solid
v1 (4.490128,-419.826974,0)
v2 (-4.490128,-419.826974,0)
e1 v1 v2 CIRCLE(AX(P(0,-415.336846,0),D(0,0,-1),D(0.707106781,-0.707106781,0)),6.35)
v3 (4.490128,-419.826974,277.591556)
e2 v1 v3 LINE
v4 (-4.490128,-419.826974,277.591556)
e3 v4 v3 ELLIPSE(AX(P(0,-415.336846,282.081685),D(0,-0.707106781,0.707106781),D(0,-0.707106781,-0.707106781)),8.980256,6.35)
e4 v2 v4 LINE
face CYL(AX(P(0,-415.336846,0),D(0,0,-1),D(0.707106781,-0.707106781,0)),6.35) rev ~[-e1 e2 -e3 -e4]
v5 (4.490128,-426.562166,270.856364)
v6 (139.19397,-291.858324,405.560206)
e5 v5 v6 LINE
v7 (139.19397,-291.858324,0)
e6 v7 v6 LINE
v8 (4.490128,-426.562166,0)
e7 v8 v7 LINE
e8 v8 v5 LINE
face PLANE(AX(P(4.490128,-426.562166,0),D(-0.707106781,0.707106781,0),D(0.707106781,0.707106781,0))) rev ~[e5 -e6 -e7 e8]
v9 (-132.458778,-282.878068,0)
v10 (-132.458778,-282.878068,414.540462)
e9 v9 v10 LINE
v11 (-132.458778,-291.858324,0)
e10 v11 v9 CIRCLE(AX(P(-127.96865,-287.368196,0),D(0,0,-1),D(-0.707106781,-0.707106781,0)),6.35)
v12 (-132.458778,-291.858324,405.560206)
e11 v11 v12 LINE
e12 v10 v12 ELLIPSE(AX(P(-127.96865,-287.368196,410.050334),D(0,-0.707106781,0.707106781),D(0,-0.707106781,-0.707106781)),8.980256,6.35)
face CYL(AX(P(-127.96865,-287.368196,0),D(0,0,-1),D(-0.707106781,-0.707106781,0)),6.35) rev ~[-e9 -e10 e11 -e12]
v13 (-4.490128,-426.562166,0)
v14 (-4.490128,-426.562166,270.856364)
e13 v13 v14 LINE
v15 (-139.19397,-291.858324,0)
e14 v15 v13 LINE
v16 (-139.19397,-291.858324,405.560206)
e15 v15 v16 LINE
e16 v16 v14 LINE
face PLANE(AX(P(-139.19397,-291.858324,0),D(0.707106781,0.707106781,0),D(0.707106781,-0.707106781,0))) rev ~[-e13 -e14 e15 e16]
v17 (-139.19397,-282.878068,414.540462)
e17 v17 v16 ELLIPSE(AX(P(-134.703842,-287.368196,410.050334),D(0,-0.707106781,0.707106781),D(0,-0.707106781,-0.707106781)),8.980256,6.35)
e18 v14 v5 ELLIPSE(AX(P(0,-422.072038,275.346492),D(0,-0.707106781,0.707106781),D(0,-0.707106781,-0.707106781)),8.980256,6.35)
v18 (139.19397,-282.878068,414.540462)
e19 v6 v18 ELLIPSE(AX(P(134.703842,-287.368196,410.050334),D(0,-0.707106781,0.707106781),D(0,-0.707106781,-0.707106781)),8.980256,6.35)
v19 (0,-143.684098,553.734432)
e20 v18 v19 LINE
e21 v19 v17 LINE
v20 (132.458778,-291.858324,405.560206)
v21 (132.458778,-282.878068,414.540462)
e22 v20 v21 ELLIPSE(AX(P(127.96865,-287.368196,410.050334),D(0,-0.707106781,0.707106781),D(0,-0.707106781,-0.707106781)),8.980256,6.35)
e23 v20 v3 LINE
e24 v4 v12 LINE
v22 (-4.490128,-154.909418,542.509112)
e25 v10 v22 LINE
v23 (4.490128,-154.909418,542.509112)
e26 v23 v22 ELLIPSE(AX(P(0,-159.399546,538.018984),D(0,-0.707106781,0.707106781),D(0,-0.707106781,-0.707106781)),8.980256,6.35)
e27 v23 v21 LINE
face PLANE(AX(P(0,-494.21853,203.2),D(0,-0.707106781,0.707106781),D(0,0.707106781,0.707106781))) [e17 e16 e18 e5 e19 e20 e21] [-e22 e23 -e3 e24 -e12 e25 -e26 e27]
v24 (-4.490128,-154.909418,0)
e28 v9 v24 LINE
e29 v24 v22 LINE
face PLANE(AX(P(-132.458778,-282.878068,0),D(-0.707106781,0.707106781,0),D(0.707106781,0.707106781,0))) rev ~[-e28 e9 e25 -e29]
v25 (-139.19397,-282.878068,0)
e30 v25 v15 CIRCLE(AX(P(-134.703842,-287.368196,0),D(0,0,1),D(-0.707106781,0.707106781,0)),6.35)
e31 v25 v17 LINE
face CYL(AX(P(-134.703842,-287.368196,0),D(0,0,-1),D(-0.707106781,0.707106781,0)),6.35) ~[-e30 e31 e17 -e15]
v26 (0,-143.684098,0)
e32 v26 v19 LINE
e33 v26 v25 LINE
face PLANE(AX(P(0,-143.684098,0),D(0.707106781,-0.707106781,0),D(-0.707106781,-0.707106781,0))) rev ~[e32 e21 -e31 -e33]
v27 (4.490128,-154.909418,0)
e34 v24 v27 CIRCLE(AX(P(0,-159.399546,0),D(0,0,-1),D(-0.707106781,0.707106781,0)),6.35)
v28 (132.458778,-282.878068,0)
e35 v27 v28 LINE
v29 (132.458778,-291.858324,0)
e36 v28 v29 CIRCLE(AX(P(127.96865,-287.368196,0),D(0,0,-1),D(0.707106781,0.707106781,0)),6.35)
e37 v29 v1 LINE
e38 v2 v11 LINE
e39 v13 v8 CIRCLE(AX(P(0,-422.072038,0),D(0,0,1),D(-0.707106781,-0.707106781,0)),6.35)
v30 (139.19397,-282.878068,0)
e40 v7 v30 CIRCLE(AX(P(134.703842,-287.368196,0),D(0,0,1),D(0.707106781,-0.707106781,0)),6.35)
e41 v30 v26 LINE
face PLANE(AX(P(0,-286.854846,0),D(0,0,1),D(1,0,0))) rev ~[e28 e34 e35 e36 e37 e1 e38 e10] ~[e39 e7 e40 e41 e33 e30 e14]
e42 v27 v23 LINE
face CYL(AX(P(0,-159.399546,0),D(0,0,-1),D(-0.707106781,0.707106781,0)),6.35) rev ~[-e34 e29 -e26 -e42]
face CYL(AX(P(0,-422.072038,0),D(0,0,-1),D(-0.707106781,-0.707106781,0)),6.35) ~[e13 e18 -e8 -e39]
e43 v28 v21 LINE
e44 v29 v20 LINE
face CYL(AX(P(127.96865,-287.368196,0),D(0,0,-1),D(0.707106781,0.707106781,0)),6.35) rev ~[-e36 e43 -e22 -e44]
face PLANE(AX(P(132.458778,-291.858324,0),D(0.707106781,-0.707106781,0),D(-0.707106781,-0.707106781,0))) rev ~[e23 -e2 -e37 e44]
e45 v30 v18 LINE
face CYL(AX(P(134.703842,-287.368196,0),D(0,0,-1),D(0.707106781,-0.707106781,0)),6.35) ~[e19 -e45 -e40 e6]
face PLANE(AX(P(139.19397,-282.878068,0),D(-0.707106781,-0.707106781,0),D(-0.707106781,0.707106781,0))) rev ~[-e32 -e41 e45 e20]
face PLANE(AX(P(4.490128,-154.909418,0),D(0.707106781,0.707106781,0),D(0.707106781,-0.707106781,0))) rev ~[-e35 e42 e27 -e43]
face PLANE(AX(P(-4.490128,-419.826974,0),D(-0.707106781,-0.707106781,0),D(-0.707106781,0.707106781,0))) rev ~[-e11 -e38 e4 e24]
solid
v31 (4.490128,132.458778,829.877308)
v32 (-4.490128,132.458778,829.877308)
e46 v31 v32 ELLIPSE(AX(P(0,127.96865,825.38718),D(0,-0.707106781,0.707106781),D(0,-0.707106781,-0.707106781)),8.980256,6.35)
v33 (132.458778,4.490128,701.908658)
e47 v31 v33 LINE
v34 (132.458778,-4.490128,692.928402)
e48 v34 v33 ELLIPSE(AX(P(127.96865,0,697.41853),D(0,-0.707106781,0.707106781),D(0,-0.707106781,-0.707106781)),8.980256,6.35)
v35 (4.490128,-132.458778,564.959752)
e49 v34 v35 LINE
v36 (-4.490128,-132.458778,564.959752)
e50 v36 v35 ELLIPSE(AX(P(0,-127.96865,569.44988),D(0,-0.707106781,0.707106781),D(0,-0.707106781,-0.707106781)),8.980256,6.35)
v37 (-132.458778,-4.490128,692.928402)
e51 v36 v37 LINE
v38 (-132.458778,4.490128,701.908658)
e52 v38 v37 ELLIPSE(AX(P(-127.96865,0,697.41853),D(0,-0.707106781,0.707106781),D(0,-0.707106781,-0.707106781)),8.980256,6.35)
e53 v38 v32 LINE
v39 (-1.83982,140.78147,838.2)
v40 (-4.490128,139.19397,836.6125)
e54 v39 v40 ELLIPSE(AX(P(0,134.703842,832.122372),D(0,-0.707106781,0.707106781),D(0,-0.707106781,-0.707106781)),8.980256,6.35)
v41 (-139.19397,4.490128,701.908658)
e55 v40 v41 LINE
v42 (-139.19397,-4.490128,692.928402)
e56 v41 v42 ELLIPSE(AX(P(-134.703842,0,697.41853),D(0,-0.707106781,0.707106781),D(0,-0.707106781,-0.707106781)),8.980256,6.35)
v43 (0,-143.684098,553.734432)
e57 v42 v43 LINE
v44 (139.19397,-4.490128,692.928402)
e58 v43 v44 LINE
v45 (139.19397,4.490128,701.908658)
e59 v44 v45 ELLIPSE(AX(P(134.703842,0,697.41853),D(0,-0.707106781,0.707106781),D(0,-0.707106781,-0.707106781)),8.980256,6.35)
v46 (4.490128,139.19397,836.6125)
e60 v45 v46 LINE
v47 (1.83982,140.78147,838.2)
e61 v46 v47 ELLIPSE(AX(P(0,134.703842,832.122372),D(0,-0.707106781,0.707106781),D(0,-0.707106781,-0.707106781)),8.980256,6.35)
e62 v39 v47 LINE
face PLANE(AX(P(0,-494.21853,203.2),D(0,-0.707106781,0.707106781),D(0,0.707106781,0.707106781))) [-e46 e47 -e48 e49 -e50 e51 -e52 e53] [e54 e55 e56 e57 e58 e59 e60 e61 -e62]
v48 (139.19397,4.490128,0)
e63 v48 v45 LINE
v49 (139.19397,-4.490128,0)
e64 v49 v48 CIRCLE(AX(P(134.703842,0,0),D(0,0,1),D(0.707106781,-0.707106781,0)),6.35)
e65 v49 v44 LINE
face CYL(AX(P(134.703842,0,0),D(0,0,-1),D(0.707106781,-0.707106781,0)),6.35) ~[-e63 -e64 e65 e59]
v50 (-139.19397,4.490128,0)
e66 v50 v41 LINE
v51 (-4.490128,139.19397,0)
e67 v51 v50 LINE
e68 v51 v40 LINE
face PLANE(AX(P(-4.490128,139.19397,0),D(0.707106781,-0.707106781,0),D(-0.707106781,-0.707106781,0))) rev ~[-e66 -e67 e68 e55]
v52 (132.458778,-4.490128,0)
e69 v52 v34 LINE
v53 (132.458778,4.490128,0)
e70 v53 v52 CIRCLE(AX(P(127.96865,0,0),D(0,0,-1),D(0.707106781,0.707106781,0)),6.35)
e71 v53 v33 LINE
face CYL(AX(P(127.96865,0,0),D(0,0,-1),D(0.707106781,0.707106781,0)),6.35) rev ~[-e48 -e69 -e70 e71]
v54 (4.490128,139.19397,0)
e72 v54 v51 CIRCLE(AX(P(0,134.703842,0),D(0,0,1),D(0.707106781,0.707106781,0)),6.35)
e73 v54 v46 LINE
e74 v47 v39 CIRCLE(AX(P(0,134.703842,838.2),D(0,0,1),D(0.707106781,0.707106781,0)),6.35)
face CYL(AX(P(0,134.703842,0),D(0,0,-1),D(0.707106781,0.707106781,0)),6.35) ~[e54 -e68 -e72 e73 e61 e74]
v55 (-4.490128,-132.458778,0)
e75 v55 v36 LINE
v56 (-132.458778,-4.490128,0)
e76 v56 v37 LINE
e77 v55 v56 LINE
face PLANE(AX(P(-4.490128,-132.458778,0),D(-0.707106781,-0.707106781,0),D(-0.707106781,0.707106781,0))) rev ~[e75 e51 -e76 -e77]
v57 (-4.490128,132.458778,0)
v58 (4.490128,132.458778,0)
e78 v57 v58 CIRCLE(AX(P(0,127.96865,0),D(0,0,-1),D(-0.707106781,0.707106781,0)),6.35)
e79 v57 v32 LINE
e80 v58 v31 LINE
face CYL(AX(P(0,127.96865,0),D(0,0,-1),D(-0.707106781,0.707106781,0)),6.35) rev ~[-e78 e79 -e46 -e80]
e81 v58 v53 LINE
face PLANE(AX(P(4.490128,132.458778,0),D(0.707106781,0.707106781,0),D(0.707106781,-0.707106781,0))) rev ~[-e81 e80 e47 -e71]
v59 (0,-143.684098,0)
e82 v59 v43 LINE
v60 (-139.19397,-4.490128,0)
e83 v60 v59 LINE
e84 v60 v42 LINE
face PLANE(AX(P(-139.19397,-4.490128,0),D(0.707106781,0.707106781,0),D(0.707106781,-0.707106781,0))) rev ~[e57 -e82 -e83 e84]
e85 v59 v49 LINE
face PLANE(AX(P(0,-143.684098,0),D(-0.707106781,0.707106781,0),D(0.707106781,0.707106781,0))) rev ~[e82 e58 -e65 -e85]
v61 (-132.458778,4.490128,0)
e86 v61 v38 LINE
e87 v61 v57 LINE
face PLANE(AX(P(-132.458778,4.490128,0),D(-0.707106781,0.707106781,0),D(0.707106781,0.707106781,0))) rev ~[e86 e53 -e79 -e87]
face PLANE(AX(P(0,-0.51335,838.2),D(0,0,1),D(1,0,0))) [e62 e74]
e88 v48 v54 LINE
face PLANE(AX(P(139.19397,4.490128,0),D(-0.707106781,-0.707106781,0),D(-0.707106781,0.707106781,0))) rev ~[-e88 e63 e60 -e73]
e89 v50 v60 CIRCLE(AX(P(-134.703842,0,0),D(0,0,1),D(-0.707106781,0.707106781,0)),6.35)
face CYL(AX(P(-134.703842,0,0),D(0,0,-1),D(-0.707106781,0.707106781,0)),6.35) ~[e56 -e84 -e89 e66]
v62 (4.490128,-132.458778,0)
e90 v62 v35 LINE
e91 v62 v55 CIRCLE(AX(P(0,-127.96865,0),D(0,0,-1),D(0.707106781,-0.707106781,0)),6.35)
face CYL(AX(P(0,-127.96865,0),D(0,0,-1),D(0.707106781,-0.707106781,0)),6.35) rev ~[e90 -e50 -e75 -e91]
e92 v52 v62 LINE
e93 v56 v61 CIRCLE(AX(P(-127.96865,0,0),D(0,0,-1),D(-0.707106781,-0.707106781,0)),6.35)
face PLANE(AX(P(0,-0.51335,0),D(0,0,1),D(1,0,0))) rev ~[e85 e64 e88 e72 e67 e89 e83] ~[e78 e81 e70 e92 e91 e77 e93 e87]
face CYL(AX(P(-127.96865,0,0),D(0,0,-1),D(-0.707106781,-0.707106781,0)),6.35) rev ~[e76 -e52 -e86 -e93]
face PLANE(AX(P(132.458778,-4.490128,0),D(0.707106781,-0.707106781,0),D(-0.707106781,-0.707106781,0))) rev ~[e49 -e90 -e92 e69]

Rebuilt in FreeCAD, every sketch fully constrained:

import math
import FreeCAD as App
import Part
import Sketcher
Q = App.Units.Quantity


def add_polygon(sketch, points):
    """Adds a closed chain of lines whose ends are joined by coincident constraints."""
    first, n = sketch.GeometryCount, len(points)
    for a, b in zip(points, points[1:] + points[:1]):
        sketch.addGeometry(Part.LineSegment(App.Vector(*a, 0), App.Vector(*b, 0)), False)
    for i in range(n):
        sketch.addConstraint(Sketcher.Constraint("Coincident", first + i, 2, first + (i + 1) % n, 1))

doc = App.newDocument("Part")
body = doc.addObject("PartDesign::Body", "Body")

# Sketch on XY plane
sketch1 = body.newObject("Sketcher::SketchObject", "Sketch")
sketch1.AttachmentSupport = (doc.getObject("XY_Plane"), [""])
sketch1.MapMode = "FlatFace"
sketch1.addGeometry([
    Part.LineSegment(App.Vector(-4, 139, 0), App.Vector(-139, 4, 0)),  # 0
    Part.ArcOfCircle(Part.Circle(App.Vector(-135, 0, 0), App.Vector(0, 0, 1), 6), math.radians(135), math.radians(225)),  # 1
    Part.LineSegment(App.Vector(-139, -4, 0), App.Vector(0, -144, 0)),  # 2
    Part.LineSegment(App.Vector(0, -144, 0), App.Vector(139, -4, 0)),  # 3
    Part.ArcOfCircle(Part.Circle(App.Vector(135, 0, 0), App.Vector(0, 0, 1), 6), math.radians(-45), math.radians(45)),  # 4
    Part.LineSegment(App.Vector(139, 4, 0), App.Vector(4, 139, 0)),  # 5
    Part.ArcOfCircle(Part.Circle(App.Vector(0, 135, 0), App.Vector(0, 0, 1), 6), math.radians(45), math.radians(135)),  # 6
    Part.LineSegment(App.Vector(-4, -132, 0), App.Vector(-132, -4, 0)),  # 7
    Part.ArcOfCircle(Part.Circle(App.Vector(-128, 0, 0), App.Vector(0, 0, 1), 6), math.radians(135), math.radians(225)),  # 8
    Part.LineSegment(App.Vector(-132, 4, 0), App.Vector(-4, 132, 0)),  # 9
    Part.ArcOfCircle(Part.Circle(App.Vector(0, 128, 0), App.Vector(0, 0, 1), 6), math.radians(45), math.radians(135)),  # 10
    Part.LineSegment(App.Vector(4, 132, 0), App.Vector(132, 4, 0)),  # 11
    Part.ArcOfCircle(Part.Circle(App.Vector(128, 0, 0), App.Vector(0, 0, 1), 6), math.radians(-45), math.radians(45)),  # 12
    Part.LineSegment(App.Vector(132, -4, 0), App.Vector(4, -132, 0)),  # 13
    Part.ArcOfCircle(Part.Circle(App.Vector(0, -128, 0), App.Vector(0, 0, 1), 6), math.radians(-135), math.radians(-45)),  # 14
], False)
sketch1.addConstraint([
    Sketcher.Constraint("Tangent", 0, 2, 1, 1),
    Sketcher.Constraint("Tangent", 1, 2, 2, 1),
    Sketcher.Constraint("Coincident", 2, 2, 3, 1),
    Sketcher.Constraint("Tangent", 3, 2, 4, 1),
    Sketcher.Constraint("Tangent", 4, 2, 5, 1),
    Sketcher.Constraint("Tangent", 5, 2, 6, 1),
    Sketcher.Constraint("Tangent", 6, 2, 0, 1),
    Sketcher.Constraint("Tangent", 7, 2, 8, 2),
    Sketcher.Constraint("Tangent", 8, 1, 9, 1),
    Sketcher.Constraint("Tangent", 9, 2, 10, 2),
    Sketcher.Constraint("Tangent", 10, 1, 11, 1),
    Sketcher.Constraint("Tangent", 11, 2, 12, 2),
    Sketcher.Constraint("Tangent", 12, 1, 13, 1),
    Sketcher.Constraint("Tangent", 13, 2, 14, 2),
    Sketcher.Constraint("Tangent", 14, 1, 7, 1),
    Sketcher.Constraint("Equal", 1, 4),
    Sketcher.Constraint("Equal", 4, 6),
    Sketcher.Constraint("Equal", 6, 8),
    Sketcher.Constraint("Equal", 8, 10),
    Sketcher.Constraint("Equal", 10, 12),
    Sketcher.Constraint("Equal", 12, 14),
    Sketcher.Constraint("Symmetric", 1, 3, 4, 3, -1, 1),
    Sketcher.Constraint("Symmetric", 8, 3, 12, 3, -1, 1),
    Sketcher.Constraint("Symmetric", 10, 3, 14, 3, -1, 1),
    Sketcher.Constraint("Symmetric", 1, 2, 3, 2, -2),
    Sketcher.Constraint("Symmetric", 9, 2, 10, 1, -2),
    Sketcher.Constraint("PointOnObject", 6, 3, -2),
    Sketcher.Constraint("Perpendicular", 0, 2),
    Sketcher.Constraint("Perpendicular", 2, 3),
    Sketcher.Constraint("Parallel", 5, 7),
    Sketcher.Constraint("Radius", 1, Q("0.25 in")),
    Sketcher.Constraint("Distance", 0, Q("7.5 in")),
    Sketcher.Constraint("Distance", 7, Q("7.125 in")),
])
pad1 = body.newObject("PartDesign::Pad", "Pad")
pad1.Profile = sketch1
pad1.Length = Q("33 in")
body2 = doc.addObject("PartDesign::Body", "Body001")

# Sketch on XY plane
sketch2 = body2.newObject("Sketcher::SketchObject", "Sketch001")
sketch2.AttachmentSupport = (doc.getObject("XY_Plane001"), [""])
sketch2.MapMode = "FlatFace"
sketch2.addGeometry([
    Part.LineSegment(App.Vector(139, -283, 0), App.Vector(0, -144, 0)),  # 0
    Part.LineSegment(App.Vector(0, -144, 0), App.Vector(-139, -283, 0)),  # 1
    Part.ArcOfCircle(Part.Circle(App.Vector(-135, -287, 0), App.Vector(0, 0, 1), 6), math.radians(135), math.radians(225)),  # 2
    Part.LineSegment(App.Vector(-139, -292, 0), App.Vector(-4, -427, 0)),  # 3
    Part.ArcOfCircle(Part.Circle(App.Vector(0, -422, 0), App.Vector(0, 0, 1), 6), math.radians(-135), math.radians(-45)),  # 4
    Part.LineSegment(App.Vector(4, -427, 0), App.Vector(139, -292, 0)),  # 5
    Part.ArcOfCircle(Part.Circle(App.Vector(135, -287, 0), App.Vector(0, 0, 1), 6), math.radians(-45), math.radians(45)),  # 6
    Part.ArcOfCircle(Part.Circle(App.Vector(-128, -287, 0), App.Vector(0, 0, 1), 6), math.radians(135), math.radians(225)),  # 7
    Part.LineSegment(App.Vector(-132, -283, 0), App.Vector(-4, -155, 0)),  # 8
    Part.ArcOfCircle(Part.Circle(App.Vector(0, -159, 0), App.Vector(0, 0, 1), 6), math.radians(45), math.radians(135)),  # 9
    Part.LineSegment(App.Vector(4, -155, 0), App.Vector(132, -283, 0)),  # 10
    Part.ArcOfCircle(Part.Circle(App.Vector(128, -287, 0), App.Vector(0, 0, 1), 6), math.radians(-45), math.radians(45)),  # 11
    Part.LineSegment(App.Vector(132, -292, 0), App.Vector(4, -420, 0)),  # 12
    Part.ArcOfCircle(Part.Circle(App.Vector(0, -415, 0), App.Vector(0, 0, 1), 6), math.radians(-135), math.radians(-45)),  # 13
    Part.LineSegment(App.Vector(-4, -420, 0), App.Vector(-132, -292, 0)),  # 14
], False)
sketch2.addConstraint([
    Sketcher.Constraint("Coincident", 0, 2, 1, 1),
    Sketcher.Constraint("Tangent", 1, 2, 2, 1),
    Sketcher.Constraint("Tangent", 2, 2, 3, 1),
    Sketcher.Constraint("Tangent", 3, 2, 4, 1),
    Sketcher.Constraint("Tangent", 4, 2, 5, 1),
    Sketcher.Constraint("Tangent", 5, 2, 6, 1),
    Sketcher.Constraint("Tangent", 6, 2, 0, 1),
    Sketcher.Constraint("Tangent", 7, 1, 8, 1),
    Sketcher.Constraint("Tangent", 8, 2, 9, 2),
    Sketcher.Constraint("Tangent", 9, 1, 10, 1),
    Sketcher.Constraint("Tangent", 10, 2, 11, 2),
    Sketcher.Constraint("Tangent", 11, 1, 12, 1),
    Sketcher.Constraint("Tangent", 12, 2, 13, 2),
    Sketcher.Constraint("Tangent", 13, 1, 14, 1),
    Sketcher.Constraint("Tangent", 14, 2, 7, 2),
    Sketcher.Constraint("Equal", 2, 4),
    Sketcher.Constraint("Equal", 4, 6),
    Sketcher.Constraint("Equal", 6, 7),
    Sketcher.Constraint("Equal", 7, 9),
    Sketcher.Constraint("Equal", 9, 11),
    Sketcher.Constraint("Equal", 11, 13),
    Sketcher.Constraint("Symmetric", 2, 3, 6, 3, -2),
    Sketcher.Constraint("Symmetric", 7, 3, 11, 3, -2),
    Sketcher.Constraint("PointOnObject", 4, 3, -2),
    Sketcher.Constraint("PointOnObject", 9, 3, -2),
    Sketcher.Constraint("PointOnObject", 13, 3, -2),
    Sketcher.Constraint("PointOnObject", 0, 2, -2),
    Sketcher.Constraint("Perpendicular", 0, 1),
    Sketcher.Constraint("Perpendicular", 1, 3),
    Sketcher.Constraint("Parallel", 5, 8),
    Sketcher.Constraint("Perpendicular", 10, 12),
    Sketcher.Constraint("Horizontal", 6, 3, 7, 3),
    Sketcher.Constraint("Radius", 2, Q("0.25 in")),
    Sketcher.Constraint("Distance", 3, Q("7.5 in")),
    Sketcher.Constraint("Distance", 8, Q("7.125 in")),
    Sketcher.Constraint("DistanceY", 8, 2, -1, 1, 154.909418),
])
pad2 = body2.newObject("PartDesign::Pad", "Pad001")
pad2.Profile = sketch2
pad2.Length = Q("33 in")
body3 = doc.addObject("PartDesign::Body", "Body002")

# Sketch on YZ plane
sketch3 = body3.newObject("Sketcher::SketchObject", "Sketch002")
sketch3.AttachmentSupport = (doc.getObject("YZ_Plane002"), [""])
sketch3.MapMode = "FlatFace"
add_polygon(sketch3, [(-494, 203), (141, 838), (-494, 838)])  # lines 0-2
sketch3.addConstraint([
    Sketcher.Constraint("Horizontal", 1),
    Sketcher.Constraint("Vertical", 2),
    Sketcher.Constraint("Equal", 1, 2),
    Sketcher.Constraint("DistanceX", 1, 2, 1, 1, Q("25 in")),
    Sketcher.Constraint("DistanceY", -1, 1, 0, 2, Q("33 in")),
    Sketcher.Constraint("DistanceX", -1, 1, 0, 2, 140.78147),
])
pad3 = body3.newObject("PartDesign::Pad", "Pad002")
pad3.Profile = sketch3
pad3.Type = "TwoLengths"
pad3.Length = 141.054842
pad3.Length2 = 141.054842
pad3.Reversed = True
doc.recompute()

body4 = doc.addObject("PartDesign::Body", "Body003")
body4.BaseFeature = body3
boolean = body.newObject("PartDesign::Boolean", "Boolean")
boolean.Type = "Cut"
boolean.addObjects([body4])
doc.recompute()

boolean2 = body2.newObject("PartDesign::Boolean", "Boolean001")
boolean2.Type = "Cut"
boolean2.addObjects([body3])

doc.recompute()
